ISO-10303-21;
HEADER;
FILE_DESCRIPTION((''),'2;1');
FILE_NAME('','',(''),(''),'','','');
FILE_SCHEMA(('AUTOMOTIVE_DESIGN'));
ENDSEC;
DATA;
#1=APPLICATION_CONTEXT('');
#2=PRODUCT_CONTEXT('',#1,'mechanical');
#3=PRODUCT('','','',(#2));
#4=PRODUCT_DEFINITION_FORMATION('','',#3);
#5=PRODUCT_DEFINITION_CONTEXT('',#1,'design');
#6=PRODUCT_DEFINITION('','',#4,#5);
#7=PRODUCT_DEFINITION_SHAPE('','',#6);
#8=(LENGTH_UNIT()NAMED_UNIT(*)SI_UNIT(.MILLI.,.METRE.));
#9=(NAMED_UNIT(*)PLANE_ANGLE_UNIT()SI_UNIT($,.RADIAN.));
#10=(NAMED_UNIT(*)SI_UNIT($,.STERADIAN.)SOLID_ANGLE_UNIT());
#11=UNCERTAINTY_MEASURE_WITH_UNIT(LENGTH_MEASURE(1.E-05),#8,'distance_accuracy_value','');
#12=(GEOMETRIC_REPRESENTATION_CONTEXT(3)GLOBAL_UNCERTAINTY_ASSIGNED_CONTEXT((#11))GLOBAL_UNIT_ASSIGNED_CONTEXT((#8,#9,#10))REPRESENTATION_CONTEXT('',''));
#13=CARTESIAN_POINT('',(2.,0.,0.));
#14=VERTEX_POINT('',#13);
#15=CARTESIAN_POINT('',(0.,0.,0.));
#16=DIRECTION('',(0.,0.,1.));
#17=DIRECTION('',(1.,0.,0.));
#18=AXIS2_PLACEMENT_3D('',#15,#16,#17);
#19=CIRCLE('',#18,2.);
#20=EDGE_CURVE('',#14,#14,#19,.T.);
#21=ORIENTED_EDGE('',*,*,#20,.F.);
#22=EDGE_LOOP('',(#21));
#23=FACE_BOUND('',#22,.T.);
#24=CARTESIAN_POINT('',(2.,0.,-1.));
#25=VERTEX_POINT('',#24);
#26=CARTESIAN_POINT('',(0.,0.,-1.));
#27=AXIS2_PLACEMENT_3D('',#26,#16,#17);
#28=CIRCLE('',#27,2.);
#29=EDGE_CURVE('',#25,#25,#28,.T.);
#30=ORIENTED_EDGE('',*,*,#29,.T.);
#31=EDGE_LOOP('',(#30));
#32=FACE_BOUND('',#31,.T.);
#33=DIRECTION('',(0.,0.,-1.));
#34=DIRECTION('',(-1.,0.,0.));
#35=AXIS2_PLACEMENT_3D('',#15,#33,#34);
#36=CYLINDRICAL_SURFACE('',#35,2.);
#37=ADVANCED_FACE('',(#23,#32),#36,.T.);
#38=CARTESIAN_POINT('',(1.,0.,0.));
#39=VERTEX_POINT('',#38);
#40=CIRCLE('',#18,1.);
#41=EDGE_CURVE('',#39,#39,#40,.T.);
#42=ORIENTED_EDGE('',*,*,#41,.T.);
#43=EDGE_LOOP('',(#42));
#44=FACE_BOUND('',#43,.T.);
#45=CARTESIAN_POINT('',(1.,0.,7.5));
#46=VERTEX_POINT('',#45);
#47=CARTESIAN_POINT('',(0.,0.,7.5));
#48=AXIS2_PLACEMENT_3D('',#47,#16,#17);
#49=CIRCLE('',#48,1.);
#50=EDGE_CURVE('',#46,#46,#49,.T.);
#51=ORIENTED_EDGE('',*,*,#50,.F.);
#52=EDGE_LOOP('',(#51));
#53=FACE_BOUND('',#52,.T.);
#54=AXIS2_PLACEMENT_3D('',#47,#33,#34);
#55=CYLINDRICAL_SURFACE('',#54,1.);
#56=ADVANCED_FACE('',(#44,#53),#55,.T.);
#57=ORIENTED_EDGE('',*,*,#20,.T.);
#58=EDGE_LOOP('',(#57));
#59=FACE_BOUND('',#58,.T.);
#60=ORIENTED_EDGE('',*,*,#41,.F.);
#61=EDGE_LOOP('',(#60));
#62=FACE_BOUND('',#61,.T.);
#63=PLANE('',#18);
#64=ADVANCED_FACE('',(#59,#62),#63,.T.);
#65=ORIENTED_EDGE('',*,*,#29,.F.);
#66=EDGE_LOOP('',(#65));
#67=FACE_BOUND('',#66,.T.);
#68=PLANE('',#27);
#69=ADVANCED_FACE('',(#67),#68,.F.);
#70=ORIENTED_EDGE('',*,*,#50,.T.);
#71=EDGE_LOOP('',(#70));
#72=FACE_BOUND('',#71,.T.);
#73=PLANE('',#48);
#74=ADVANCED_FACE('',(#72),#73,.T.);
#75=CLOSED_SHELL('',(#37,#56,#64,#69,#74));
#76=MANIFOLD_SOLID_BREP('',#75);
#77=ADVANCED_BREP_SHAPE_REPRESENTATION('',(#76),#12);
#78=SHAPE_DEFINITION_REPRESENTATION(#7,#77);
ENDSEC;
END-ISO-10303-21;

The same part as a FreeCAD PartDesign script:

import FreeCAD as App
import Part
import Sketcher

doc = App.newDocument("Part")
body = doc.addObject("PartDesign::Body", "Body")

# Sketch on XY plane
sketch1 = body.newObject("Sketcher::SketchObject", "Sketch")
sketch1.AttachmentSupport = (doc.getObject("XY_Plane"), [""])
sketch1.MapMode = "FlatFace"
sketch1.AttachmentOffset = App.Placement(App.Vector(0, 0, -1), App.Rotation())
sketch1.addGeometry(Part.Circle(App.Vector(0, 0, 0), App.Vector(0, 0, 1), 2), False)
sketch1.addConstraint([
    Sketcher.Constraint("Coincident", 0, 3, -1, 1),
    Sketcher.Constraint("Diameter", 0, 4.0),
])
pad1 = body.newObject("PartDesign::Pad", "Pad")
pad1.Profile = sketch1
pad1.Length = 1

# Sketch on XY plane
sketch2 = body.newObject("Sketcher::SketchObject", "Sketch001")
sketch2.AttachmentSupport = (doc.getObject("XY_Plane"), [""])
sketch2.MapMode = "FlatFace"
sketch2.addGeometry(Part.Circle(App.Vector(0, 0, 0), App.Vector(0, 0, 1), 1), False)
sketch2.addConstraint([
    Sketcher.Constraint("Coincident", 0, 3, -1, 1),
    Sketcher.Constraint("Diameter", 0, 2.0),
])
pad2 = body.newObject("PartDesign::Pad", "Pad001")
pad2.Profile = sketch2
pad2.Length = 7.5

doc.recompute()
